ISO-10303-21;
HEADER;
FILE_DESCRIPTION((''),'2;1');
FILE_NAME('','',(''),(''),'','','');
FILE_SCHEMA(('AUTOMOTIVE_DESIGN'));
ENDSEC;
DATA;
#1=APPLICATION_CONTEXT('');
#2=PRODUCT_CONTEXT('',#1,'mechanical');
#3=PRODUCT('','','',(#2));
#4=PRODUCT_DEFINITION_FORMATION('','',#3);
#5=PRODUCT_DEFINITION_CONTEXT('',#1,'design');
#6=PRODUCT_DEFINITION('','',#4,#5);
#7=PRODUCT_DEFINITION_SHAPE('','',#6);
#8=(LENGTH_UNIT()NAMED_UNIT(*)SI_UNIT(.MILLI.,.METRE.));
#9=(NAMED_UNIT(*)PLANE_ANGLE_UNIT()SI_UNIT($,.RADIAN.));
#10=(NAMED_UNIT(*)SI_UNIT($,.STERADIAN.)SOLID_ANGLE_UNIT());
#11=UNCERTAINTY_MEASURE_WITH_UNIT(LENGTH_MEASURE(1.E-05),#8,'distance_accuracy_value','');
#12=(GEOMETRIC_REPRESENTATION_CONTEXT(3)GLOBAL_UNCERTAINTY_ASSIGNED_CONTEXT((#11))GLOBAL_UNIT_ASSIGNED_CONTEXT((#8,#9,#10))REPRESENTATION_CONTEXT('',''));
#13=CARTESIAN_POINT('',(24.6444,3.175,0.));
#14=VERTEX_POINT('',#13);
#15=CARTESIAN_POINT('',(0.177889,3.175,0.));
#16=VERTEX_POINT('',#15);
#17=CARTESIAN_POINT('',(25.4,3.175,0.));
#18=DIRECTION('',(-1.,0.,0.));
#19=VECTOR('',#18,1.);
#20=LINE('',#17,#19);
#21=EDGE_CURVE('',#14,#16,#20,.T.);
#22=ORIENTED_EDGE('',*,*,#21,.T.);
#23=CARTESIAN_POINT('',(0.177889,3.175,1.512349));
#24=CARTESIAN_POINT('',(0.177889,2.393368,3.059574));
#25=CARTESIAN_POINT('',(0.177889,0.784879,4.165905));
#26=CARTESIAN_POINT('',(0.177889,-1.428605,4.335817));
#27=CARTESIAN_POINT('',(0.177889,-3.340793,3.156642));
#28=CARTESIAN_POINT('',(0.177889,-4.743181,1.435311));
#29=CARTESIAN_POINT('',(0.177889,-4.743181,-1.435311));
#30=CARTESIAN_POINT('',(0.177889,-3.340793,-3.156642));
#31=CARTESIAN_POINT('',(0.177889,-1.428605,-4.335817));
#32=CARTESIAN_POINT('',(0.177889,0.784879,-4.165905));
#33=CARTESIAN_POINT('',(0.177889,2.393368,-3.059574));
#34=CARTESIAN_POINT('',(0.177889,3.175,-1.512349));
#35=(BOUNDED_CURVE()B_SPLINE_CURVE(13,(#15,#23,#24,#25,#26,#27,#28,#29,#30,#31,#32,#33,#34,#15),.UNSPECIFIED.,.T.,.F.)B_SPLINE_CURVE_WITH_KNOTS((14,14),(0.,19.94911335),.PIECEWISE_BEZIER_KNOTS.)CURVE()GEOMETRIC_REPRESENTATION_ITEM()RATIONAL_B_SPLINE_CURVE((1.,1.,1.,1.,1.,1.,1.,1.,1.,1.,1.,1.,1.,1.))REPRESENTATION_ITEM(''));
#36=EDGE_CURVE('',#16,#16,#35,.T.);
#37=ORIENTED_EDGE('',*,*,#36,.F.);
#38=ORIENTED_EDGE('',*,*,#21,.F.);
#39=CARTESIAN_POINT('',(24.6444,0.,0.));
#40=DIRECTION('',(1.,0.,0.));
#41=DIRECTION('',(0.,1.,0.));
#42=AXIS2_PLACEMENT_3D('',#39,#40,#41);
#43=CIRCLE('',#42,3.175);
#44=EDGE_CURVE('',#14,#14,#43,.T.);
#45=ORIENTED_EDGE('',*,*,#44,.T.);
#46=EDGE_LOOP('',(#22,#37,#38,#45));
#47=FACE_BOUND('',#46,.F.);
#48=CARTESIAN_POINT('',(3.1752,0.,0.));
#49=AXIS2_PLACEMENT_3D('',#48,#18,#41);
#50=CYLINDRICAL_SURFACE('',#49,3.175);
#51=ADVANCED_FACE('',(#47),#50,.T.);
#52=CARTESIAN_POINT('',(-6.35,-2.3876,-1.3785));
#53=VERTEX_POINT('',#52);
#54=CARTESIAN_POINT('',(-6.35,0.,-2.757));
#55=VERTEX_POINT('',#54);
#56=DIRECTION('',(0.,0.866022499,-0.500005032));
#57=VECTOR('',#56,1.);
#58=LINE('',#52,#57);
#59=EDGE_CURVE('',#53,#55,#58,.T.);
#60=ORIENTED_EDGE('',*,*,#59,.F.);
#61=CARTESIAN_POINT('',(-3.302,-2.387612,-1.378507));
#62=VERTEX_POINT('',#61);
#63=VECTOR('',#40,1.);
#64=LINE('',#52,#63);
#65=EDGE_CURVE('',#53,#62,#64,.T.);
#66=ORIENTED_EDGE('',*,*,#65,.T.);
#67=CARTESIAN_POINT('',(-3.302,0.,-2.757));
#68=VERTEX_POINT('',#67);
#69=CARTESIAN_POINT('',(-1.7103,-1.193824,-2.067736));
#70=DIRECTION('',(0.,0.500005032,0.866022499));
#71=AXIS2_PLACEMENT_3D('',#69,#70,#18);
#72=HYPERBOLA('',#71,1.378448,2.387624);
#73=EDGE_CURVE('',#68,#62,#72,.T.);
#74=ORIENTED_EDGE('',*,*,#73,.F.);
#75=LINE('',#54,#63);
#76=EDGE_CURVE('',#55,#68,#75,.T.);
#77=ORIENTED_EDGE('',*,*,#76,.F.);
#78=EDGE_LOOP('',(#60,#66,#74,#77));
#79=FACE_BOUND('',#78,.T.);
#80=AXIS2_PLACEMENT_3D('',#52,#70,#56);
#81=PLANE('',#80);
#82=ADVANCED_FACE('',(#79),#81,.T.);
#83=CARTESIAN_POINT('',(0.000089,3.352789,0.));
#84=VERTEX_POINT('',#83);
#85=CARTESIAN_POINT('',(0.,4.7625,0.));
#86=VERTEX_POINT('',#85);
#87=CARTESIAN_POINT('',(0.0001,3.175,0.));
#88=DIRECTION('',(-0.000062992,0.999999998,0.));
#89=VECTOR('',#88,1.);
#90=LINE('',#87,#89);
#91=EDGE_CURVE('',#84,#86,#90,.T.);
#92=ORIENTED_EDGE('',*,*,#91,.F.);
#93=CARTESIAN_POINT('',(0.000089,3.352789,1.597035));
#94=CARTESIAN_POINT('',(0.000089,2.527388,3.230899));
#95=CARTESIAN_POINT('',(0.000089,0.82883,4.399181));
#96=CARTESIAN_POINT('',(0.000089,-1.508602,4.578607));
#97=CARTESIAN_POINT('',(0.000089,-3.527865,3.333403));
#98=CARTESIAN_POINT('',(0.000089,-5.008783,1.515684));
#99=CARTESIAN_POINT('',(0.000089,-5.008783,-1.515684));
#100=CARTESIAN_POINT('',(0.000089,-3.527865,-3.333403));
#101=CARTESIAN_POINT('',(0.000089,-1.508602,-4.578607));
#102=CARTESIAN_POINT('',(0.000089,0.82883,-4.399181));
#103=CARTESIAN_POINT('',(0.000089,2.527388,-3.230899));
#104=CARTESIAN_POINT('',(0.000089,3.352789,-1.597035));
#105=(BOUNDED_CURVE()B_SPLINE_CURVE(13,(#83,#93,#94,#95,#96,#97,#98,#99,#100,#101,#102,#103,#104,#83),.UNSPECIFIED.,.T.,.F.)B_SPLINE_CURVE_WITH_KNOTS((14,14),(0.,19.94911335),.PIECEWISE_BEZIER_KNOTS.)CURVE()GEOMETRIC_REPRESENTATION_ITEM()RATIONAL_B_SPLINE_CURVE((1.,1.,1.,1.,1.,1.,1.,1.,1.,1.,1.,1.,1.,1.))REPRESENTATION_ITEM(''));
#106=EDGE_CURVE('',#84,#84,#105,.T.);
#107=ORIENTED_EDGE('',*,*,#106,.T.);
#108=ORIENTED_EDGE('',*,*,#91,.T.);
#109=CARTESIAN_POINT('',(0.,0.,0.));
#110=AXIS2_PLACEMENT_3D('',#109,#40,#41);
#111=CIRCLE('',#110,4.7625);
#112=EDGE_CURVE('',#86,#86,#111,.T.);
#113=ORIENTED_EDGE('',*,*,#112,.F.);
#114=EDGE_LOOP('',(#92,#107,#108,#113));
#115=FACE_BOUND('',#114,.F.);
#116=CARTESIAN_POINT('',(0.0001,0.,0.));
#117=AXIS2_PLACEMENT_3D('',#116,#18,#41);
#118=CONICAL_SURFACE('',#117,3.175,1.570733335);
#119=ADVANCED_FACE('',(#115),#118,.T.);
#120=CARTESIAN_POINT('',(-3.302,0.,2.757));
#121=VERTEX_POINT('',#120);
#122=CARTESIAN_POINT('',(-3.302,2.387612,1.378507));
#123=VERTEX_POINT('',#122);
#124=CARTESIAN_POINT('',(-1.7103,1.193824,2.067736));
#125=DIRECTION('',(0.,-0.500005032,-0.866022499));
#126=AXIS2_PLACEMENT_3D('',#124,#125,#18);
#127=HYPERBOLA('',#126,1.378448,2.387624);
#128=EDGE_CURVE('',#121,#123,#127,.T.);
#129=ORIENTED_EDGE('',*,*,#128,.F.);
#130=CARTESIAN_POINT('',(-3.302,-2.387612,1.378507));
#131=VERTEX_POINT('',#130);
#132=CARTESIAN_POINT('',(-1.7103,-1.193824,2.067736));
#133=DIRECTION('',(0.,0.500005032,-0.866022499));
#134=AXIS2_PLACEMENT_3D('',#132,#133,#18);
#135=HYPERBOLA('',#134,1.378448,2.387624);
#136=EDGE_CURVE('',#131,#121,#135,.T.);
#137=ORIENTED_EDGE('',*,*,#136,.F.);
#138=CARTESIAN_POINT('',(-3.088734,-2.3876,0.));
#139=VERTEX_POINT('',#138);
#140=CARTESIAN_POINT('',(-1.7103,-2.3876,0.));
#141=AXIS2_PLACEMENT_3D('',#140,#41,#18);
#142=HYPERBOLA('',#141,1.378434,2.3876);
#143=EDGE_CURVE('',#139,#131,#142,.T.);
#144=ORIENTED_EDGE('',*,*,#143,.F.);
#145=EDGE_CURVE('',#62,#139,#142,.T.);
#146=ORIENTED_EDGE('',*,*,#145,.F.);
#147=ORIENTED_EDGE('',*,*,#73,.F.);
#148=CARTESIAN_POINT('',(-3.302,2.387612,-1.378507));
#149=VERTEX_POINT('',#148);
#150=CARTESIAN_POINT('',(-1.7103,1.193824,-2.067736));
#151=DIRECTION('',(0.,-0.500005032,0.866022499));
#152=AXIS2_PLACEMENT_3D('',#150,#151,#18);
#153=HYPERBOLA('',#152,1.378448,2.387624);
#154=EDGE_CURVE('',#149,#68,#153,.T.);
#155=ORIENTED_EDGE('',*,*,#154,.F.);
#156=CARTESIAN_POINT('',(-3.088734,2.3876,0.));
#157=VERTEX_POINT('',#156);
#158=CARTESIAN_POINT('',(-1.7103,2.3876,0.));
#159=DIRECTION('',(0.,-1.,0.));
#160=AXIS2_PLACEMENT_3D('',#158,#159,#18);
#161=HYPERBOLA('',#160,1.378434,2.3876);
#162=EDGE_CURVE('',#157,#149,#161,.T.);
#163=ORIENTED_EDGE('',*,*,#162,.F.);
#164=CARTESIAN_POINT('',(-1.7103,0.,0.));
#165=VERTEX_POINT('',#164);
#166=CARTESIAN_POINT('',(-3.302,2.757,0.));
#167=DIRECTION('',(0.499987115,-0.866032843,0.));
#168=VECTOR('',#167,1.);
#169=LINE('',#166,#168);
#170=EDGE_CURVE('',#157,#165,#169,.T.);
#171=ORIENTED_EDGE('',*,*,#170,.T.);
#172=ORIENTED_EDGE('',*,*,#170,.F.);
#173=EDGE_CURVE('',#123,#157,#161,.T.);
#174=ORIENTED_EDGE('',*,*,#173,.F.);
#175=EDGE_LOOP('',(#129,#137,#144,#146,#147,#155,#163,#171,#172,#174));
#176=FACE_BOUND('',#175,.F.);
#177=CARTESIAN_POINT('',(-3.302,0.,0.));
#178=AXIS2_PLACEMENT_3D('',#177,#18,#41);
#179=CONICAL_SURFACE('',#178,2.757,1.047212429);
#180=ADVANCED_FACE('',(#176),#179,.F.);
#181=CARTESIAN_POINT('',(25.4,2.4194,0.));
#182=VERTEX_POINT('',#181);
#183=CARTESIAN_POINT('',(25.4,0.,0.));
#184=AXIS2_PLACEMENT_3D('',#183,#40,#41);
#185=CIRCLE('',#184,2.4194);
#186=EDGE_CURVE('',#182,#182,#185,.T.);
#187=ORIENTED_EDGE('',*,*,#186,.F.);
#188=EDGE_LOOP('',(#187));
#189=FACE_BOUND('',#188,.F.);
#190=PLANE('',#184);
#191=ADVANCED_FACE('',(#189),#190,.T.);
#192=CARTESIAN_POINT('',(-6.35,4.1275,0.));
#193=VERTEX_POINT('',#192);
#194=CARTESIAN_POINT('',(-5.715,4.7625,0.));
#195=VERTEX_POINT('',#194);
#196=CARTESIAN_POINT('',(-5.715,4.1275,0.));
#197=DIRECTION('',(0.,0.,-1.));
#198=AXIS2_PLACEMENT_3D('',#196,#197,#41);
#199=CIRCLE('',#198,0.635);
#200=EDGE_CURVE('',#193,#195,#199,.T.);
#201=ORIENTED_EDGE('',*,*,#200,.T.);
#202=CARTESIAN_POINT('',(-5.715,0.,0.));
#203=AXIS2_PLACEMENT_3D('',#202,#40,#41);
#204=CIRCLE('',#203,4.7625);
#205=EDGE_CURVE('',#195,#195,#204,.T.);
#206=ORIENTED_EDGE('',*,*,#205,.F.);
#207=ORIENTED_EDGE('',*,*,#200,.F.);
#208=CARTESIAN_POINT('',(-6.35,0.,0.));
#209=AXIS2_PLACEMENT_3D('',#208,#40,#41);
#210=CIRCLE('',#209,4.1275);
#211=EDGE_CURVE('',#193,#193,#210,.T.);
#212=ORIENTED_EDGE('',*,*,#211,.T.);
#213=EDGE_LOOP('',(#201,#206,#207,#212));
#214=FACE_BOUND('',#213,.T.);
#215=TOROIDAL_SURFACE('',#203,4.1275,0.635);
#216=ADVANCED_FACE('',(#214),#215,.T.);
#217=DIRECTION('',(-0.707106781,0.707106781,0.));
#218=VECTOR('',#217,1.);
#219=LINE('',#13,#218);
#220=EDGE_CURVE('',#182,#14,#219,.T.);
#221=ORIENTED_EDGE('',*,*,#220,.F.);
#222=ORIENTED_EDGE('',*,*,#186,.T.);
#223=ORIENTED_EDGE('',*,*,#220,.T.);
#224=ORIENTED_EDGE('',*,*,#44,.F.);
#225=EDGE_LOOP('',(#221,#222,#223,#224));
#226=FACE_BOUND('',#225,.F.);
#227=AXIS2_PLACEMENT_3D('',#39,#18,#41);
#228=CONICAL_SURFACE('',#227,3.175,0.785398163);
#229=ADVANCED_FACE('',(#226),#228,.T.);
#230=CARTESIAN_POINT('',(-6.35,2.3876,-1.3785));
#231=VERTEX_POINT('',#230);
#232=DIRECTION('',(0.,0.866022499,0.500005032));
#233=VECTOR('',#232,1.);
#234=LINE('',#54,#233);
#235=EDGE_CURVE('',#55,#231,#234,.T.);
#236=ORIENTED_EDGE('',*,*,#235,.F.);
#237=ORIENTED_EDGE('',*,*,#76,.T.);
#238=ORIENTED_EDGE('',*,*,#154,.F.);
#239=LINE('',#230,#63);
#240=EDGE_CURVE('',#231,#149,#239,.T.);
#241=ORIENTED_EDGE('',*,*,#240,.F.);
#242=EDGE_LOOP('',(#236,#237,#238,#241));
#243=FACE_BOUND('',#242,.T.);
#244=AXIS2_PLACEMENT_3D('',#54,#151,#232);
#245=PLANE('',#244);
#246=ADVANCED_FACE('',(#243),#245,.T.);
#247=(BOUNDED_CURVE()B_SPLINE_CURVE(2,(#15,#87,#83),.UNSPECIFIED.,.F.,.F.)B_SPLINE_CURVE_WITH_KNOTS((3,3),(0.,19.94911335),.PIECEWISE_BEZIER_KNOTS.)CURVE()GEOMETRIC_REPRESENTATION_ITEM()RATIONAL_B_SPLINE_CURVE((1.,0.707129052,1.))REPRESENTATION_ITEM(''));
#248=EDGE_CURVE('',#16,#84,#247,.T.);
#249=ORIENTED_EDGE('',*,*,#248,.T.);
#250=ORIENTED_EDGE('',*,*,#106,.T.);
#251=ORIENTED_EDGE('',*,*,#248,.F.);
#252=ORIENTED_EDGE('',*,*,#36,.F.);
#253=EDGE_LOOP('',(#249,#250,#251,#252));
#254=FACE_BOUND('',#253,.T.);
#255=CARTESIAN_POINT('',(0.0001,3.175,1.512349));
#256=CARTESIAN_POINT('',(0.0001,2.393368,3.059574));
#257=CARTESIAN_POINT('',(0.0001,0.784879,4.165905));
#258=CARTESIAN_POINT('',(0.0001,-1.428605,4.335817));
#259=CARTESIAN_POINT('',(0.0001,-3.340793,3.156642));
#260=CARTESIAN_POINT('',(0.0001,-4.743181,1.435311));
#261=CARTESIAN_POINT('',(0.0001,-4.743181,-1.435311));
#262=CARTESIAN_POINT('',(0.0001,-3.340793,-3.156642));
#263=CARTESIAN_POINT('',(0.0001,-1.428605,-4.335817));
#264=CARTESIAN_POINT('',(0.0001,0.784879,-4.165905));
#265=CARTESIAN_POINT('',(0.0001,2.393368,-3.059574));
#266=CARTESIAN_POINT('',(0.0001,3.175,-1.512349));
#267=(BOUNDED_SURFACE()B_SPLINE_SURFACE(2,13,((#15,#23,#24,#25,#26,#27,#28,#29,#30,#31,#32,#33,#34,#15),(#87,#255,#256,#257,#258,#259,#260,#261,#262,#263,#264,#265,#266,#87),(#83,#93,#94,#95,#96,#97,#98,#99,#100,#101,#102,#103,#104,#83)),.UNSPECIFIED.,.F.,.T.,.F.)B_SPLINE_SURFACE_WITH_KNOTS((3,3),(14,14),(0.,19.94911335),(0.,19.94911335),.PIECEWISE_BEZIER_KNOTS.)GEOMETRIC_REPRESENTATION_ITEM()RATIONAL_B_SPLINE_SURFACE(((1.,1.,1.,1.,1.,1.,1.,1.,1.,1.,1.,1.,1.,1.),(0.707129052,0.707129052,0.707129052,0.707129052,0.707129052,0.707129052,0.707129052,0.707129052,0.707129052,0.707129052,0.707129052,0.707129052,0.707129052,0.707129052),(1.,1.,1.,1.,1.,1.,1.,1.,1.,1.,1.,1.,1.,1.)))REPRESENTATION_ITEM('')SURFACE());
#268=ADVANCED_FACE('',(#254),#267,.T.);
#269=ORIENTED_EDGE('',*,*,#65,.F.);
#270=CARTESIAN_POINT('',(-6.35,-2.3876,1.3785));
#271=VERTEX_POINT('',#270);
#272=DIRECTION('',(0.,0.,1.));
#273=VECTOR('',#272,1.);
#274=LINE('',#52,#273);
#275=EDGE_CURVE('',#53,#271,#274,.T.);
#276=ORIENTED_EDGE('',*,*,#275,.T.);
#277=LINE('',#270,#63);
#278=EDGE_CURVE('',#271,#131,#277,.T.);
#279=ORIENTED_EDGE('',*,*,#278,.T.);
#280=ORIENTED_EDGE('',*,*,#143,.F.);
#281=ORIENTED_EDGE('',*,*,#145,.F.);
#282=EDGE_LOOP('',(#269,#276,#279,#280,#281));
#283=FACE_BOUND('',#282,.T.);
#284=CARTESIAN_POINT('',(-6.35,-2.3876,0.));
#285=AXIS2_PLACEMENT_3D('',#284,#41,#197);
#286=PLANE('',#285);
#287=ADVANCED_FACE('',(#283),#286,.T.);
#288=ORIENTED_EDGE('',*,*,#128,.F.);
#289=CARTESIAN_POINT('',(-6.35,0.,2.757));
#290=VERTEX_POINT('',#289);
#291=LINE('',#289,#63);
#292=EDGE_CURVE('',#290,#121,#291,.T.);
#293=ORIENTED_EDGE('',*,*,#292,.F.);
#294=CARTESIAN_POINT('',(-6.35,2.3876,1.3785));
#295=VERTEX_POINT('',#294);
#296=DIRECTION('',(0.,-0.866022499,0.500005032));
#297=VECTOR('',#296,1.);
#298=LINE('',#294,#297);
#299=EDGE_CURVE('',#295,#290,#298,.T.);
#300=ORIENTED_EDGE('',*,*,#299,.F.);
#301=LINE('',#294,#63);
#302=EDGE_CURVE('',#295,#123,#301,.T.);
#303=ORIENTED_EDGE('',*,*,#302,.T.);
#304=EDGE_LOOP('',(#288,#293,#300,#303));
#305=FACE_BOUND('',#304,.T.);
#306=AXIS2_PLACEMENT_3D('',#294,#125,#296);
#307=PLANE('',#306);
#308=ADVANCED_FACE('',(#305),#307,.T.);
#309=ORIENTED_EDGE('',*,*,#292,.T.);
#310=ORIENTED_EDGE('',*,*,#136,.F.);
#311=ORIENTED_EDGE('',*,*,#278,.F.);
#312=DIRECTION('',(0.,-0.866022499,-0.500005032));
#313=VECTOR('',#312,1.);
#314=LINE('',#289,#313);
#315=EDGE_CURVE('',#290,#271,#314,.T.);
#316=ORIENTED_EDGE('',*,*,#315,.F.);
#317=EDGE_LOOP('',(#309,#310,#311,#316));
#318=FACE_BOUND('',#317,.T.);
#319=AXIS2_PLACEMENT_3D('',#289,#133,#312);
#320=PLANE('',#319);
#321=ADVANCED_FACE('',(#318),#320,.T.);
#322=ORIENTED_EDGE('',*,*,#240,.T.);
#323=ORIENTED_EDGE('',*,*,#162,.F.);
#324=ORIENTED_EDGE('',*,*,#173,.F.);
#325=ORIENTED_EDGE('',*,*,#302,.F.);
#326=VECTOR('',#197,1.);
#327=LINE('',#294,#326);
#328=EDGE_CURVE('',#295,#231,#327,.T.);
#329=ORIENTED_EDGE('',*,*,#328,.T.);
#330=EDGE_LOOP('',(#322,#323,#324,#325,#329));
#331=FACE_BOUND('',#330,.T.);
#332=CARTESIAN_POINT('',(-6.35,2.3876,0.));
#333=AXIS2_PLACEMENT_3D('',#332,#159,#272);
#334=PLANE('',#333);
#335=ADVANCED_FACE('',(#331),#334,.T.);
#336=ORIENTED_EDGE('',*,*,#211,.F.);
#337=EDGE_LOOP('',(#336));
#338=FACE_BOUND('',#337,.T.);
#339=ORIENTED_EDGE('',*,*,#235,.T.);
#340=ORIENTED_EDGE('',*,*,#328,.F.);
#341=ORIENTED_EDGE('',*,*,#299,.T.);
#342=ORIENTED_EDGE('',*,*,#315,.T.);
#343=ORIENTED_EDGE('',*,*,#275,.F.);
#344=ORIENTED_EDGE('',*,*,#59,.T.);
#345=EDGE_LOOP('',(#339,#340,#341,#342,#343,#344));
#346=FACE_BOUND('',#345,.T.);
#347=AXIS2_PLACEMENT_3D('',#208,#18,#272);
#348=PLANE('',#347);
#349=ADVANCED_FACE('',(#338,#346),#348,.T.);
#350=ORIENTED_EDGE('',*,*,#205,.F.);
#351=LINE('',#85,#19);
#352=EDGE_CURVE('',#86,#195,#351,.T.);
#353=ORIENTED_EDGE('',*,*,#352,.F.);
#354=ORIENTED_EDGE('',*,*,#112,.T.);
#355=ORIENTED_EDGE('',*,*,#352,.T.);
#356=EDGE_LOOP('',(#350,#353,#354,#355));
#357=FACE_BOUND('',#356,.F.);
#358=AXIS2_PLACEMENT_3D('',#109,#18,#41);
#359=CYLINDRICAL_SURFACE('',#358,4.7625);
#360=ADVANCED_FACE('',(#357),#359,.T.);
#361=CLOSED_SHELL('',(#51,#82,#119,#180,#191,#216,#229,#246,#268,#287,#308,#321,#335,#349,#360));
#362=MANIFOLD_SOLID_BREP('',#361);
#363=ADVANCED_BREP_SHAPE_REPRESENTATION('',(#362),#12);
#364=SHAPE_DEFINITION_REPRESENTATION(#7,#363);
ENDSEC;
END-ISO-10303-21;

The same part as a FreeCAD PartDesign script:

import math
import FreeCAD as App
import Part
import Sketcher
Q = App.Units.Quantity


def edges_at(feature, points):
    """Names of the edges that pass closest to the given points."""
    edges = feature.Shape.Edges
    near = lambda p: min(range(len(edges)), key=lambda i: edges[i].distToShape(Part.Vertex(*p))[0])
    return sorted({f"Edge{near(p) + 1}" for p in points})


def add_polygon(sketch, points):
    """Adds a closed chain of lines whose ends are joined by coincident constraints."""
    first, n = sketch.GeometryCount, len(points)
    for a, b in zip(points, points[1:] + points[:1]):
        sketch.addGeometry(Part.LineSegment(App.Vector(*a, 0), App.Vector(*b, 0)), False)
    for i in range(n):
        sketch.addConstraint(Sketcher.Constraint("Coincident", first + i, 2, first + (i + 1) % n, 1))

doc = App.newDocument("Part")
params = doc.addObject("Spreadsheet::Sheet", "Params")
for row, (alias, value) in enumerate([
    ("sketch1_width", "1 in"),
    ("sketch1_width2", "0.25 in"),
    ("sketch1_width3", "0.12 in"),
    ("sketch1_height", "0.125 in"),
    ("sketch1_height2", "0.0625 in"),
    ("revolution_angle", "360 deg"),
    ("fillet_radius", "0.025 in"),
    ("chamfer_size", "0.7556 mm"),
    ("chamfer_size2", "0.7556 mm"),
    ("fillet2_radius", "0.007 in"),
], start=1):
    params.set(f"A{row}", alias)
    params.set(f"B{row}", "=" + value)
    params.setAlias(f"B{row}", alias)

body = doc.addObject("PartDesign::Body", "Body")

# Sketch on XY plane
sketch1 = body.newObject("Sketcher::SketchObject", "Sketch")
sketch1.AttachmentSupport = (doc.getObject("XY_Plane"), [""])
sketch1.MapMode = "FlatFace"
add_polygon(sketch1, [(-3.302, 2.757), (-1.7103, 0), (25.4, 0), (25.4, 3.175), (0.0001, 3.175), (0, 4.7625), (-6.35, 4.7625), (-6.35, 2.757)])  # lines 0-7
sketch1.addConstraint([
    Sketcher.Constraint("Horizontal", 1),
    Sketcher.Constraint("Vertical", 2),
    Sketcher.Constraint("Horizontal", 3),
    Sketcher.Constraint("Vertical", 4),
    Sketcher.Constraint("Horizontal", 5),
    Sketcher.Constraint("Vertical", 6),
    Sketcher.Constraint("Horizontal", 7),
    Sketcher.Constraint("PointOnObject", 0, 2, -1),
    Sketcher.Constraint("PointOnObject", 3, 2, -2),
    Sketcher.Constraint("DistanceX", 3, 2, 3, 1, Q("1 in")),
    Sketcher.Constraint("DistanceX", 5, 2, 5, 1, Q("0.25 in")),
    Sketcher.Constraint("DistanceX", 7, 1, 7, 2, Q("0.12 in")),
    Sketcher.Constraint("DistanceY", 2, 1, 2, 2, Q("0.125 in")),
    Sketcher.Constraint("Angle", 0, Q("-60.0009 deg")),
    Sketcher.Constraint("DistanceY", 4, 1, 4, 2, Q("0.0625 in")),
    Sketcher.Constraint("DistanceX", 1, 1, 1, 2, Q("27.1103 mm")),
])
sketch1.setExpression("Constraints[17]", "Params.sketch1_width")
sketch1.setExpression("Constraints[18]", "Params.sketch1_width2")
sketch1.setExpression("Constraints[19]", "Params.sketch1_width3")
sketch1.setExpression("Constraints[20]", "Params.sketch1_height")
sketch1.setExpression("Constraints[22]", "Params.sketch1_height2")
revolution = body.newObject("PartDesign::Revolution", "Revolution")
revolution.Profile = sketch1
revolution.ReferenceAxis = (sketch1, ["H_Axis"])
revolution.setExpression("Angle", "Params.revolution_angle")

# Sketch on YZ plane
sketch2 = body.newObject("Sketcher::SketchObject", "Sketch001")
sketch2.AttachmentSupport = (doc.getObject("YZ_Plane"), [""])
sketch2.MapMode = "FlatFace"
sketch2.AttachmentOffset = App.Placement(App.Vector(0, 0, -0.25 * 25.4), App.Rotation())
sketch2.addGeometry([
    Part.LineSegment(App.Vector(2.3876, 1.3785, 0), App.Vector(0, 2.757, 0)),  # 0
    Part.ArcOfCircle(Part.Circle(App.Vector(0, 0, 0), App.Vector(0, 0, 1), 2.757), math.radians(30.000333), math.radians(90)),  # 1
    Part.ArcOfCircle(Part.Circle(App.Vector(0, 0, 0), App.Vector(0, 0, 1), 2.757), math.radians(90), math.radians(149.999667)),  # 2
    Part.LineSegment(App.Vector(0, 2.757, 0), App.Vector(-2.3876, 1.3785, 0)),  # 3
    Part.ArcOfCircle(Part.Circle(App.Vector(0, 0, 0), App.Vector(0, 0, 1), 2.757), math.radians(-30.000333), math.radians(30.000333)),  # 4
    Part.LineSegment(App.Vector(2.3876, 1.3785, 0), App.Vector(2.3876, -1.3785, 0)),  # 5
    Part.LineSegment(App.Vector(-2.3876, 1.3785, 0), App.Vector(-2.3876, -1.3785, 0)),  # 6
    Part.ArcOfCircle(Part.Circle(App.Vector(0, 0, 0), App.Vector(0, 0, 1), 2.757), math.radians(149.999667), math.radians(210.000333)),  # 7
    Part.LineSegment(App.Vector(-2.3876, -1.3785, 0), App.Vector(0, -2.757, 0)),  # 8
    Part.ArcOfCircle(Part.Circle(App.Vector(0, 0, 0), App.Vector(0, 0, 1), 2.757), math.radians(-149.999667), math.radians(-90)),  # 9
    Part.ArcOfCircle(Part.Circle(App.Vector(0, 0, 0), App.Vector(0, 0, 1), 2.757), math.radians(-90), math.radians(-30.000333)),  # 10
    Part.LineSegment(App.Vector(0, -2.757, 0), App.Vector(2.3876, -1.3785, 0)),  # 11
], False)
sketch2.addConstraint([
    Sketcher.Constraint("Coincident", 0, 1, 1, 1),
    Sketcher.Constraint("Coincident", 1, 2, 0, 2),
    Sketcher.Constraint("Coincident", 2, 1, 3, 1),
    Sketcher.Constraint("Coincident", 3, 2, 2, 2),
    Sketcher.Constraint("Coincident", 4, 1, 5, 2),
    Sketcher.Constraint("Coincident", 5, 1, 4, 2),
    Sketcher.Constraint("Coincident", 6, 1, 7, 1),
    Sketcher.Constraint("Coincident", 7, 2, 6, 2),
    Sketcher.Constraint("Coincident", 8, 1, 9, 1),
    Sketcher.Constraint("Coincident", 9, 2, 8, 2),
    Sketcher.Constraint("Coincident", 10, 1, 11, 1),
    Sketcher.Constraint("Coincident", 11, 2, 10, 2),
    Sketcher.Constraint("Vertical", 5),
    Sketcher.Constraint("Vertical", 6),
    Sketcher.Constraint("Coincident", 1, 3, -1, 1),
    Sketcher.Constraint("Coincident", 2, 3, -1, 1),
    Sketcher.Constraint("Coincident", 4, 3, -1, 1),
    Sketcher.Constraint("Coincident", 7, 3, -1, 1),
    Sketcher.Constraint("Coincident", 9, 3, -1, 1),
    Sketcher.Constraint("Coincident", 10, 3, -1, 1),
    Sketcher.Constraint("Coincident", 2, 1, 1, 2),
    Sketcher.Constraint("Coincident", 5, 1, 0, 1),
    Sketcher.Constraint("Coincident", 6, 1, 3, 2),
    Sketcher.Constraint("Coincident", 8, 1, 7, 2),
    Sketcher.Constraint("Coincident", 10, 1, 9, 2),
    Sketcher.Constraint("PointOnObject", 1, 2, -2),
    Sketcher.Constraint("PointOnObject", 9, 2, -2),
    Sketcher.Constraint("Parallel", 0, 8),
    Sketcher.Constraint("Parallel", 3, 11),
    Sketcher.Constraint("Angle", 0, Q("149.9997 deg")),
    Sketcher.Constraint("Radius", 1, Q("2.757 mm")),
])
pad1 = body.newObject("PartDesign::Pad", "Pad")
pad1.Profile = sketch2
pad1.Type = "UpToFirst"
doc.recompute()

fillet = body.newObject("PartDesign::Fillet", "Fillet")
fillet.Base = (pad1, edges_at(pad1, [(-6.35, -4.763, 0)]))
fillet.setExpression("Radius", "Params.fillet_radius")
doc.recompute()

chamfer = body.newObject("PartDesign::Chamfer", "Chamfer")
chamfer.Base = (fillet, edges_at(fillet, [(25.4, -3.175, 0)]))
chamfer.ChamferType = "Two distances"
chamfer.setExpression("Size", "Params.chamfer_size")
chamfer.setExpression("Size2", "Params.chamfer_size2")
doc.recompute()

fillet2 = body.newObject("PartDesign::Fillet", "Fillet001")
fillet2.Base = (chamfer, edges_at(chamfer, [(0, -3.175, 0)]))
fillet2.setExpression("Radius", "Params.fillet2_radius")

doc.recompute()
